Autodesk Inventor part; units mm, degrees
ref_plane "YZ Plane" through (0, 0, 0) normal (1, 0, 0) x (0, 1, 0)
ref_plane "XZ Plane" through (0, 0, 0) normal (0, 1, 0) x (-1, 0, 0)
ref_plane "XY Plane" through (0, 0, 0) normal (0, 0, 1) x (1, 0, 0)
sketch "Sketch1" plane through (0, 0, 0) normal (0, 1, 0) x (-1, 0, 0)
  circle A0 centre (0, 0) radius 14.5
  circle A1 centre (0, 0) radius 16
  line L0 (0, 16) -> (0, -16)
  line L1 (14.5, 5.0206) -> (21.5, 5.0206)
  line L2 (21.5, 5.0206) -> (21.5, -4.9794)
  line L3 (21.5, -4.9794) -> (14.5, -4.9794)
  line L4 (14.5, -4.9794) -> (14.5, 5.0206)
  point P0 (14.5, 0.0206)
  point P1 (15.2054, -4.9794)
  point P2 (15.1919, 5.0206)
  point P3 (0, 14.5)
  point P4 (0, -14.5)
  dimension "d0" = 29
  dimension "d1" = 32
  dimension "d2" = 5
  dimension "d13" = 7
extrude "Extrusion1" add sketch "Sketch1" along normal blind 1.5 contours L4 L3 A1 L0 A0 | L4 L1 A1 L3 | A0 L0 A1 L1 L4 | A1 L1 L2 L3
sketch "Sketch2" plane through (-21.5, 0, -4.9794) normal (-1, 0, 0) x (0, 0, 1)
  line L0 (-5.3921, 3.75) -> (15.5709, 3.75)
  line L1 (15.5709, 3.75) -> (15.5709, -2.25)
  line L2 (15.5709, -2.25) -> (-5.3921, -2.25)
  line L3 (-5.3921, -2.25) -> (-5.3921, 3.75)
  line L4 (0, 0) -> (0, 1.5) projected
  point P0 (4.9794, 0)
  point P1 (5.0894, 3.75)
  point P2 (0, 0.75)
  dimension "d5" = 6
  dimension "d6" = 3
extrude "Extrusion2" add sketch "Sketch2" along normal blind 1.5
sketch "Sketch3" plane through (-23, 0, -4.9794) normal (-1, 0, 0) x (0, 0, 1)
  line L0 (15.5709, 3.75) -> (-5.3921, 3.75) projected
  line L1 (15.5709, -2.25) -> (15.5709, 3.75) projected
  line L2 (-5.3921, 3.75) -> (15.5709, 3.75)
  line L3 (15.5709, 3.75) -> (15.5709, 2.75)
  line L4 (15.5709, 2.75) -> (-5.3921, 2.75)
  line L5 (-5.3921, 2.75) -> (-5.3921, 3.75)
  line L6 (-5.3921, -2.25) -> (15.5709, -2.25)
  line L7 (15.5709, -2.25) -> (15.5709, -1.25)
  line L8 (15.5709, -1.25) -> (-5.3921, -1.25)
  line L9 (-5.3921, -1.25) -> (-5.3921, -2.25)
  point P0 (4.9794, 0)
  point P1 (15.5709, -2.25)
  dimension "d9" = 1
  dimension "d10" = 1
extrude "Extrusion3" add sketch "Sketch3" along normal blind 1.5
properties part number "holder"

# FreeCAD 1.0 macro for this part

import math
import FreeCAD as App
import Part
import Sketcher
from FreeCAD import Vector

doc = App.newDocument("Part")
params = doc.addObject("Spreadsheet::Sheet", "Params")
for row, (alias, value) in enumerate([
    ("sketch1_radius", "16 mm"),
    ("sketch1_radius2", "14.5 mm"),
    ("sketch1_height", "10 mm"),
    ("pad1_length", "1.5 mm"),
    ("sketch2_width", "6 mm"),
    ("pad2_length", "1.5 mm"),
    ("sketch3_width", "1 mm"),
    ("pad3_length", "1.5 mm"),
], start=1):
    params.set(f"A{row}", alias)
    params.set(f"B{row}", "=" + value)
    params.setAlias(f"B{row}", alias)

body = doc.addObject("PartDesign::Body", "Body")

# Sketch on XZ plane
sketch1 = body.newObject("Sketcher::SketchObject", "Sketch")
sketch1.AttachmentSupport = (doc.getObject("XZ_Plane"), [""])
sketch1.MapMode = "FlatFace"
sketch1.addGeometry(Part.ArcOfCircle(Part.Circle(Vector(0, 0, 0), Vector(0, 0, 1), 16), math.radians(-162), math.radians(-90)), False)
sketch1.addGeometry(Part.LineSegment(Vector(-15.2, -5, 0), Vector(-21.5, -5, 0)), False)
sketch1.addGeometry(Part.LineSegment(Vector(-21.5, -5, 0), Vector(-21.5, 5, 0)), False)
sketch1.addGeometry(Part.LineSegment(Vector(-21.5, 5, 0), Vector(-15.2, 5, 0)), False)
sketch1.addGeometry(Part.ArcOfCircle(Part.Circle(Vector(0, 0, 0), Vector(0, 0, 1), 16), math.radians(90), math.radians(162)), False)
sketch1.addGeometry(Part.LineSegment(Vector(0, 16, 0), Vector(0, 14.5, 0)), False)
sketch1.addGeometry(Part.ArcOfCircle(Part.Circle(Vector(0, 0, 0), Vector(0, 0, 1), 14.5), math.radians(90), math.radians(270)), False)
sketch1.addGeometry(Part.LineSegment(Vector(0, -14.5, 0), Vector(0, -16, 0)), False)
sketch1.addConstraint(Sketcher.Constraint("Coincident", 0, 1, 1, 1))
sketch1.addConstraint(Sketcher.Constraint("Coincident", 1, 2, 2, 1))
sketch1.addConstraint(Sketcher.Constraint("Coincident", 2, 2, 3, 1))
sketch1.addConstraint(Sketcher.Constraint("Coincident", 3, 2, 4, 2))
sketch1.addConstraint(Sketcher.Constraint("Coincident", 4, 1, 5, 1))
sketch1.addConstraint(Sketcher.Constraint("Coincident", 5, 2, 6, 1))
sketch1.addConstraint(Sketcher.Constraint("Coincident", 6, 2, 7, 1))
sketch1.addConstraint(Sketcher.Constraint("Coincident", 7, 2, 0, 2))
sketch1.addConstraint(Sketcher.Constraint("Horizontal", 1))
sketch1.addConstraint(Sketcher.Constraint("Vertical", 2))
sketch1.addConstraint(Sketcher.Constraint("Horizontal", 3))
sketch1.addConstraint(Sketcher.Constraint("Vertical", 5))
sketch1.addConstraint(Sketcher.Constraint("Vertical", 7))
sketch1.addConstraint(Sketcher.Constraint("Coincident", 0, 3, -1, 1))
sketch1.addConstraint(Sketcher.Constraint("Coincident", 4, 3, -1, 1))
sketch1.addConstraint(Sketcher.Constraint("Coincident", 6, 3, -1, 1))
sketch1.addConstraint(Sketcher.Constraint("Equal", 0, 4))
sketch1.addConstraint(Sketcher.Constraint("PointOnObject", 4, 1, -2))
sketch1.addConstraint(Sketcher.Constraint("PointOnObject", 6, 2, -2))
sketch1.addConstraint(Sketcher.Constraint("Radius", 0, 16.0))
sketch1.addConstraint(Sketcher.Constraint("Radius", 6, 14.5))
sketch1.addConstraint(Sketcher.Constraint("DistanceY", 2, 1, 2, 2, 10.0))
sketch1.addConstraint(Sketcher.Constraint("DistanceX", 1, 2, -1, 1, 21.5))
sketch1.addConstraint(Sketcher.Constraint("DistanceX", 3, 1, 3, 2, 6.308))
sketch1.setExpression("Constraints[19]", "Params.sketch1_radius")
sketch1.setExpression("Constraints[20]", "Params.sketch1_radius2")
sketch1.setExpression("Constraints[21]", "Params.sketch1_height")
pad1 = body.newObject("PartDesign::Pad", "Pad")
pad1.Profile = sketch1
pad1.setExpression("Length", "Params.pad1_length")
pad1.Reversed = True

# Sketch on YZ plane
sketch2 = body.newObject("Sketcher::SketchObject", "Sketch001")
sketch2.AttachmentSupport = (doc.getObject("YZ_Plane"), [""])
sketch2.MapMode = "FlatFace"
sketch2.AttachmentOffset = App.Placement(Vector(0, 0, -21.5), App.Rotation())
sketch2.addGeometry(Part.LineSegment(Vector(4, 11, 0), Vector(4, -10, 0)), False)
sketch2.addGeometry(Part.LineSegment(Vector(4, -10, 0), Vector(-2, -10, 0)), False)
sketch2.addGeometry(Part.LineSegment(Vector(-2, -10, 0), Vector(-2, 11, 0)), False)
sketch2.addGeometry(Part.LineSegment(Vector(-2, 11, 0), Vector(4, 11, 0)), False)
sketch2.addConstraint(Sketcher.Constraint("Coincident", 0, 2, 1, 1))
sketch2.addConstraint(Sketcher.Constraint("Coincident", 1, 2, 2, 1))
sketch2.addConstraint(Sketcher.Constraint("Coincident", 2, 2, 3, 1))
sketch2.addConstraint(Sketcher.Constraint("Coincident", 3, 2, 0, 1))
sketch2.addConstraint(Sketcher.Constraint("Vertical", 0))
sketch2.addConstraint(Sketcher.Constraint("Horizontal", 1))
sketch2.addConstraint(Sketcher.Constraint("Vertical", 2))
sketch2.addConstraint(Sketcher.Constraint("Horizontal", 3))
sketch2.addConstraint(Sketcher.Constraint("DistanceX", 1, 2, 1, 1, 6.0))
sketch2.addConstraint(Sketcher.Constraint("DistanceY", 0, 2, 0, 1, 20.963))
sketch2.addConstraint(Sketcher.Constraint("DistanceX", -1, 1, 0, 2, 3.75))
sketch2.addConstraint(Sketcher.Constraint("DistanceY", 0, 2, -1, 1, 10.3715))
sketch2.setExpression("Constraints[8]", "Params.sketch2_width")
pad2 = body.newObject("PartDesign::Pad", "Pad001")
pad2.Profile = sketch2
pad2.setExpression("Length", "Params.pad2_length")
pad2.Reversed = True

# Sketch on YZ plane
sketch3 = body.newObject("Sketcher::SketchObject", "Sketch002")
sketch3.AttachmentSupport = (doc.getObject("YZ_Plane"), [""])
sketch3.MapMode = "FlatFace"
sketch3.AttachmentOffset = App.Placement(Vector(0, 0, -23), App.Rotation())
sketch3.addGeometry(Part.LineSegment(Vector(2.8, 10.6, 0), Vector(3.8, 10.6, 0)), False)
sketch3.addGeometry(Part.LineSegment(Vector(3.8, 10.6, 0), Vector(3.8, -10.4, 0)), False)
sketch3.addGeometry(Part.LineSegment(Vector(3.8, -10.4, 0), Vector(2.8, -10.4, 0)), False)
sketch3.addGeometry(Part.LineSegment(Vector(2.8, -10.4, 0), Vector(2.8, 10.6, 0)), False)
sketch3.addGeometry(Part.LineSegment(Vector(-2.2, 10.6, 0), Vector(-1.2, 10.6, 0)), False)
sketch3.addGeometry(Part.LineSegment(Vector(-1.2, 10.6, 0), Vector(-1.2, -10.4, 0)), False)
sketch3.addGeometry(Part.LineSegment(Vector(-1.2, -10.4, 0), Vector(-2.2, -10.4, 0)), False)
sketch3.addGeometry(Part.LineSegment(Vector(-2.2, -10.4, 0), Vector(-2.2, 10.6, 0)), False)
sketch3.addConstraint(Sketcher.Constraint("Coincident", 0, 2, 1, 1))
sketch3.addConstraint(Sketcher.Constraint("Coincident", 1, 2, 2, 1))
sketch3.addConstraint(Sketcher.Constraint("Coincident", 2, 2, 3, 1))
sketch3.addConstraint(Sketcher.Constraint("Coincident", 3, 2, 0, 1))
sketch3.addConstraint(Sketcher.Constraint("Coincident", 4, 2, 5, 1))
sketch3.addConstraint(Sketcher.Constraint("Coincident", 5, 2, 6, 1))
sketch3.addConstraint(Sketcher.Constraint("Coincident", 6, 2, 7, 1))
sketch3.addConstraint(Sketcher.Constraint("Coincident", 7, 2, 4, 1))
sketch3.addConstraint(Sketcher.Constraint("Horizontal", 0))
sketch3.addConstraint(Sketcher.Constraint("Vertical", 1))
sketch3.addConstraint(Sketcher.Constraint("Horizontal", 2))
sketch3.addConstraint(Sketcher.Constraint("Vertical", 3))
sketch3.addConstraint(Sketcher.Constraint("Horizontal", 4))
sketch3.addConstraint(Sketcher.Constraint("Vertical", 5))
sketch3.addConstraint(Sketcher.Constraint("Horizontal", 6))
sketch3.addConstraint(Sketcher.Constraint("Vertical", 7))
sketch3.addConstraint(Sketcher.Constraint("Horizontal", 3, 2, 4, 2))
sketch3.addConstraint(Sketcher.Constraint("Horizontal", 2, 2, 5, 2))
sketch3.addConstraint(Sketcher.Constraint("Equal", 2, 4))
sketch3.addConstraint(Sketcher.Constraint("DistanceX", 0, 1, 0, 2, 1.0))
sketch3.addConstraint(Sketcher.Constraint("DistanceX", 4, 2, 3, 2, 4.0))
sketch3.addConstraint(Sketcher.Constraint("DistanceY", 1, 2, 1, 1, 20.963))
sketch3.addConstraint(Sketcher.Constraint("DistanceX", -1, 1, 0, 2, 3.75))
sketch3.addConstraint(Sketcher.Constraint("DistanceY", -1, 1, 0, 2, 10.5915))
sketch3.setExpression("Constraints[19]", "Params.sketch3_width")
pad3 = body.newObject("PartDesign::Pad", "Pad002")
pad3.Profile = sketch3
pad3.setExpression("Length", "Params.pad3_length")
pad3.Reversed = True

doc.recompute()
